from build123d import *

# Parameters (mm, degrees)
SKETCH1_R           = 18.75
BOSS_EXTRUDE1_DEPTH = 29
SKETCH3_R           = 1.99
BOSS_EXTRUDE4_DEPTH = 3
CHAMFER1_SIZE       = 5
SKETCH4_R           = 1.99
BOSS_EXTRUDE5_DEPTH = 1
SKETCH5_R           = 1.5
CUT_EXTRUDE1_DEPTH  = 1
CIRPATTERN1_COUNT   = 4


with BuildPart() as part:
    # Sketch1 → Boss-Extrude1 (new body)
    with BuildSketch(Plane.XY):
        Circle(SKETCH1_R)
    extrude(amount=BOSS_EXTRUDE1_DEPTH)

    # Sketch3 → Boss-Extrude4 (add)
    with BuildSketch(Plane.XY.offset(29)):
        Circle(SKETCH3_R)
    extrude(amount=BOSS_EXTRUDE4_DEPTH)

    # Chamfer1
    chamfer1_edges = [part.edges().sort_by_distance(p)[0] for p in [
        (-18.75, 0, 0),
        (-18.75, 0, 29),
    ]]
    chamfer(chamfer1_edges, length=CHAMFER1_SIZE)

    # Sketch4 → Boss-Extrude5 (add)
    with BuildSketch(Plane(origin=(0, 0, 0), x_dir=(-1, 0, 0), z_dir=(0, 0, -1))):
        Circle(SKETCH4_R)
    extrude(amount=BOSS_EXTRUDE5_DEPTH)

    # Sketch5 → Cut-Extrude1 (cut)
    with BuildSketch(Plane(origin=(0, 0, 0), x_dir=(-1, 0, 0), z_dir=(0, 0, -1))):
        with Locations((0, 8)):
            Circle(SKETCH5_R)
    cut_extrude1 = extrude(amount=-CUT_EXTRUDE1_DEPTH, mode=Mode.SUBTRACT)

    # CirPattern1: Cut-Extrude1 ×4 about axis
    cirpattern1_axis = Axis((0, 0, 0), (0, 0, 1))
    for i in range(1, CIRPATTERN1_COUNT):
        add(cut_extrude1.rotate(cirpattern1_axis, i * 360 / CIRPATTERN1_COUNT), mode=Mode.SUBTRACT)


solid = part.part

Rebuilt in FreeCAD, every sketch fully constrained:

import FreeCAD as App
import Part
import Sketcher
from FreeCAD import Vector
Q = App.Units.Quantity


def edges_at(feature, points):
    """Names of the edges that pass closest to the given points."""
    edges = feature.Shape.Edges
    near = lambda p: min(range(len(edges)), key=lambda i: edges[i].distToShape(Part.Vertex(*p))[0])
    return sorted({f"Edge{near(p) + 1}" for p in points})

doc = App.newDocument("Part")
body = doc.addObject("PartDesign::Body", "Body")

# Sketch on XY plane
sketch1 = body.newObject("Sketcher::SketchObject", "Sketch")
sketch1.AttachmentSupport = (doc.getObject("XY_Plane"), [""])
sketch1.MapMode = "FlatFace"
sketch1.addGeometry(Part.Circle(Vector(0, 0, 0), Vector(0, 0, 1), 18.75), False)
sketch1.addConstraint([
    Sketcher.Constraint("Coincident", 0, 3, -1, 1),
    Sketcher.Constraint("Diameter", 0, Q("37.5 mm")),
])
pad1 = body.newObject("PartDesign::Pad", "Pad")
pad1.Profile = sketch1
pad1.Length = 29

# Sketch on XY plane
sketch2 = body.newObject("Sketcher::SketchObject", "Sketch001")
sketch2.AttachmentSupport = (doc.getObject("XY_Plane"), [""])
sketch2.MapMode = "FlatFace"
sketch2.AttachmentOffset = App.Placement(Vector(0, 0, 29), App.Rotation())
sketch2.addGeometry(Part.Circle(Vector(0, 0, 0), Vector(0, 0, 1), 1.99), False)
sketch2.addConstraint([
    Sketcher.Constraint("Coincident", 0, 3, -1, 1),
    Sketcher.Constraint("Diameter", 0, Q("3.98 mm")),
])
pad2 = body.newObject("PartDesign::Pad", "Pad001")
pad2.Profile = sketch2
pad2.Length = 3
doc.recompute()

chamfer = body.newObject("PartDesign::Chamfer", "Chamfer")
chamfer.Base = (pad2, edges_at(pad2, [(-18.75, 0, 0), (-18.75, 0, 29)]))
chamfer.Size = 5

# Sketch on XY plane
sketch3 = body.newObject("Sketcher::SketchObject", "Sketch002")
sketch3.AttachmentSupport = (doc.getObject("XY_Plane"), [""])
sketch3.MapMode = "FlatFace"
sketch3.addGeometry(Part.Circle(Vector(0, 0, 0), Vector(0, 0, 1), 1.99), False)
sketch3.addConstraint([
    Sketcher.Constraint("Coincident", 0, 3, -1, 1),
    Sketcher.Constraint("Diameter", 0, Q("3.98 mm")),
])
pad3 = body.newObject("PartDesign::Pad", "Pad002")
pad3.Profile = sketch3
pad3.Length = 1
pad3.Reversed = True

# Sketch on XY plane
sketch4 = body.newObject("Sketcher::SketchObject", "Sketch003")
sketch4.AttachmentSupport = (doc.getObject("XY_Plane"), [""])
sketch4.MapMode = "FlatFace"
sketch4.addGeometry(Part.Circle(Vector(0, 8, 0), Vector(0, 0, 1), 1.5), False)
sketch4.addConstraint([
    Sketcher.Constraint("PointOnObject", 0, 3, -2),
    Sketcher.Constraint("Diameter", 0, Q("3 mm")),
    Sketcher.Constraint("DistanceY", -1, 1, 0, 3, Q("8 mm")),
])
pocket1 = body.newObject("PartDesign::Pocket", "Pocket")
pocket1.Profile = sketch4
pocket1.Length = 1
pocket1.Reversed = True
doc.recompute()

polarpattern = body.newObject("PartDesign::PolarPattern", "PolarPattern")
polarpattern.Originals = [pocket1]
polarpattern.Axis = (doc.getObject("Z_Axis"), [""])
polarpattern.Angle = 360
polarpattern.Occurrences = 4
body.Tip = polarpattern

doc.recompute()
